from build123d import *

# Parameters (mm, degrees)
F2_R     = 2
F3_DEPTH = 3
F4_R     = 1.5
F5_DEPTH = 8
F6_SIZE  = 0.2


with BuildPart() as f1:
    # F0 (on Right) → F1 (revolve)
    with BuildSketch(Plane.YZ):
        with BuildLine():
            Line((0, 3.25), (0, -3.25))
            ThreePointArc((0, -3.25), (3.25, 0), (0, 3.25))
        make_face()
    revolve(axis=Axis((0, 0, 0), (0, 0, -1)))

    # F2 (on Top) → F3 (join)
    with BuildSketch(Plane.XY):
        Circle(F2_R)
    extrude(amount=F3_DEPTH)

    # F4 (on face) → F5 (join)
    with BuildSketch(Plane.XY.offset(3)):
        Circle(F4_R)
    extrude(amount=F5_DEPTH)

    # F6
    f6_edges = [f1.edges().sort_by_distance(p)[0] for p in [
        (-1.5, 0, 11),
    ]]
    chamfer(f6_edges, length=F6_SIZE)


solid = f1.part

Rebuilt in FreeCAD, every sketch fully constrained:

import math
import FreeCAD as App
import Part
import Sketcher
Q = App.Units.Quantity


def edges_at(feature, points):
    """Names of the edges that pass closest to the given points."""
    edges = feature.Shape.Edges
    near = lambda p: min(range(len(edges)), key=lambda i: edges[i].distToShape(Part.Vertex(*p))[0])
    return sorted({f"Edge{near(p) + 1}" for p in points})

doc = App.newDocument("Part")
body = doc.addObject("PartDesign::Body", "Body")

# Sketch on YZ plane
sketch1 = doc.addObject("Sketcher::SketchObject", "Sketch")
body.addObject(sketch1)
sketch1.AttachmentSupport = (doc.YZ_Plane, [""])
sketch1.MapMode = "FlatFace"
sketch1.addGeometry([
    Part.LineSegment(App.Vector(0, 3.2, 0), App.Vector(0, -3.2, 0)),
    Part.ArcOfCircle(Part.Circle(App.Vector(0, 0, 0), App.Vector(0, 0, 1), 3.2), math.radians(-90), math.radians(90)),
], False)
sketch1.addConstraint([
    Sketcher.Constraint("Coincident", 0, 1, 1, 2),
    Sketcher.Constraint("Coincident", 1, 1, 0, 2),
    Sketcher.Constraint("Vertical", 0),
    Sketcher.Constraint("Coincident", 1, 3, -1, 1),
    Sketcher.Constraint("PointOnObject", 0, 1, -2),
    Sketcher.Constraint("Radius", 1, Q("3.25 mm")),
])
revolution = doc.addObject("PartDesign::Revolution", "Revolution")
body.addObject(revolution)
revolution.Profile = sketch1
revolution.ReferenceAxis = (sketch1, ["V_Axis"])
revolution.Angle = 360

# Sketch on XY plane
sketch2 = doc.addObject("Sketcher::SketchObject", "Sketch001")
body.addObject(sketch2)
sketch2.AttachmentSupport = (doc.XY_Plane, [""])
sketch2.MapMode = "FlatFace"
sketch2.addGeometry(Part.Circle(App.Vector(0, 0, 0), App.Vector(0, 0, 1), 2), False)
sketch2.addConstraint([
    Sketcher.Constraint("Coincident", 0, 3, -1, 1),
    Sketcher.Constraint("Diameter", 0, Q("4 mm")),
])
pad1 = doc.addObject("PartDesign::Pad", "Pad")
body.addObject(pad1)
pad1.Profile = sketch2
pad1.Length = 3

# Sketch on XY plane
sketch3 = doc.addObject("Sketcher::SketchObject", "Sketch002")
body.addObject(sketch3)
sketch3.AttachmentSupport = (doc.XY_Plane, [""])
sketch3.MapMode = "FlatFace"
sketch3.AttachmentOffset = App.Placement(App.Vector(0, 0, 3), App.Rotation())
sketch3.addGeometry(Part.Circle(App.Vector(0, 0, 0), App.Vector(0, 0, 1), 1.5), False)
sketch3.addConstraint([
    Sketcher.Constraint("Coincident", 0, 3, -1, 1),
    Sketcher.Constraint("Diameter", 0, Q("3 mm")),
])
pad2 = doc.addObject("PartDesign::Pad", "Pad001")
body.addObject(pad2)
pad2.Profile = sketch3
pad2.Length = 8
doc.recompute()

chamfer = doc.addObject("PartDesign::Chamfer", "Chamfer")
body.addObject(chamfer)
chamfer.Base = (pad2, edges_at(pad2, [(-1.5, 0, 11)]))
chamfer.Size = 0.2

doc.recompute()
